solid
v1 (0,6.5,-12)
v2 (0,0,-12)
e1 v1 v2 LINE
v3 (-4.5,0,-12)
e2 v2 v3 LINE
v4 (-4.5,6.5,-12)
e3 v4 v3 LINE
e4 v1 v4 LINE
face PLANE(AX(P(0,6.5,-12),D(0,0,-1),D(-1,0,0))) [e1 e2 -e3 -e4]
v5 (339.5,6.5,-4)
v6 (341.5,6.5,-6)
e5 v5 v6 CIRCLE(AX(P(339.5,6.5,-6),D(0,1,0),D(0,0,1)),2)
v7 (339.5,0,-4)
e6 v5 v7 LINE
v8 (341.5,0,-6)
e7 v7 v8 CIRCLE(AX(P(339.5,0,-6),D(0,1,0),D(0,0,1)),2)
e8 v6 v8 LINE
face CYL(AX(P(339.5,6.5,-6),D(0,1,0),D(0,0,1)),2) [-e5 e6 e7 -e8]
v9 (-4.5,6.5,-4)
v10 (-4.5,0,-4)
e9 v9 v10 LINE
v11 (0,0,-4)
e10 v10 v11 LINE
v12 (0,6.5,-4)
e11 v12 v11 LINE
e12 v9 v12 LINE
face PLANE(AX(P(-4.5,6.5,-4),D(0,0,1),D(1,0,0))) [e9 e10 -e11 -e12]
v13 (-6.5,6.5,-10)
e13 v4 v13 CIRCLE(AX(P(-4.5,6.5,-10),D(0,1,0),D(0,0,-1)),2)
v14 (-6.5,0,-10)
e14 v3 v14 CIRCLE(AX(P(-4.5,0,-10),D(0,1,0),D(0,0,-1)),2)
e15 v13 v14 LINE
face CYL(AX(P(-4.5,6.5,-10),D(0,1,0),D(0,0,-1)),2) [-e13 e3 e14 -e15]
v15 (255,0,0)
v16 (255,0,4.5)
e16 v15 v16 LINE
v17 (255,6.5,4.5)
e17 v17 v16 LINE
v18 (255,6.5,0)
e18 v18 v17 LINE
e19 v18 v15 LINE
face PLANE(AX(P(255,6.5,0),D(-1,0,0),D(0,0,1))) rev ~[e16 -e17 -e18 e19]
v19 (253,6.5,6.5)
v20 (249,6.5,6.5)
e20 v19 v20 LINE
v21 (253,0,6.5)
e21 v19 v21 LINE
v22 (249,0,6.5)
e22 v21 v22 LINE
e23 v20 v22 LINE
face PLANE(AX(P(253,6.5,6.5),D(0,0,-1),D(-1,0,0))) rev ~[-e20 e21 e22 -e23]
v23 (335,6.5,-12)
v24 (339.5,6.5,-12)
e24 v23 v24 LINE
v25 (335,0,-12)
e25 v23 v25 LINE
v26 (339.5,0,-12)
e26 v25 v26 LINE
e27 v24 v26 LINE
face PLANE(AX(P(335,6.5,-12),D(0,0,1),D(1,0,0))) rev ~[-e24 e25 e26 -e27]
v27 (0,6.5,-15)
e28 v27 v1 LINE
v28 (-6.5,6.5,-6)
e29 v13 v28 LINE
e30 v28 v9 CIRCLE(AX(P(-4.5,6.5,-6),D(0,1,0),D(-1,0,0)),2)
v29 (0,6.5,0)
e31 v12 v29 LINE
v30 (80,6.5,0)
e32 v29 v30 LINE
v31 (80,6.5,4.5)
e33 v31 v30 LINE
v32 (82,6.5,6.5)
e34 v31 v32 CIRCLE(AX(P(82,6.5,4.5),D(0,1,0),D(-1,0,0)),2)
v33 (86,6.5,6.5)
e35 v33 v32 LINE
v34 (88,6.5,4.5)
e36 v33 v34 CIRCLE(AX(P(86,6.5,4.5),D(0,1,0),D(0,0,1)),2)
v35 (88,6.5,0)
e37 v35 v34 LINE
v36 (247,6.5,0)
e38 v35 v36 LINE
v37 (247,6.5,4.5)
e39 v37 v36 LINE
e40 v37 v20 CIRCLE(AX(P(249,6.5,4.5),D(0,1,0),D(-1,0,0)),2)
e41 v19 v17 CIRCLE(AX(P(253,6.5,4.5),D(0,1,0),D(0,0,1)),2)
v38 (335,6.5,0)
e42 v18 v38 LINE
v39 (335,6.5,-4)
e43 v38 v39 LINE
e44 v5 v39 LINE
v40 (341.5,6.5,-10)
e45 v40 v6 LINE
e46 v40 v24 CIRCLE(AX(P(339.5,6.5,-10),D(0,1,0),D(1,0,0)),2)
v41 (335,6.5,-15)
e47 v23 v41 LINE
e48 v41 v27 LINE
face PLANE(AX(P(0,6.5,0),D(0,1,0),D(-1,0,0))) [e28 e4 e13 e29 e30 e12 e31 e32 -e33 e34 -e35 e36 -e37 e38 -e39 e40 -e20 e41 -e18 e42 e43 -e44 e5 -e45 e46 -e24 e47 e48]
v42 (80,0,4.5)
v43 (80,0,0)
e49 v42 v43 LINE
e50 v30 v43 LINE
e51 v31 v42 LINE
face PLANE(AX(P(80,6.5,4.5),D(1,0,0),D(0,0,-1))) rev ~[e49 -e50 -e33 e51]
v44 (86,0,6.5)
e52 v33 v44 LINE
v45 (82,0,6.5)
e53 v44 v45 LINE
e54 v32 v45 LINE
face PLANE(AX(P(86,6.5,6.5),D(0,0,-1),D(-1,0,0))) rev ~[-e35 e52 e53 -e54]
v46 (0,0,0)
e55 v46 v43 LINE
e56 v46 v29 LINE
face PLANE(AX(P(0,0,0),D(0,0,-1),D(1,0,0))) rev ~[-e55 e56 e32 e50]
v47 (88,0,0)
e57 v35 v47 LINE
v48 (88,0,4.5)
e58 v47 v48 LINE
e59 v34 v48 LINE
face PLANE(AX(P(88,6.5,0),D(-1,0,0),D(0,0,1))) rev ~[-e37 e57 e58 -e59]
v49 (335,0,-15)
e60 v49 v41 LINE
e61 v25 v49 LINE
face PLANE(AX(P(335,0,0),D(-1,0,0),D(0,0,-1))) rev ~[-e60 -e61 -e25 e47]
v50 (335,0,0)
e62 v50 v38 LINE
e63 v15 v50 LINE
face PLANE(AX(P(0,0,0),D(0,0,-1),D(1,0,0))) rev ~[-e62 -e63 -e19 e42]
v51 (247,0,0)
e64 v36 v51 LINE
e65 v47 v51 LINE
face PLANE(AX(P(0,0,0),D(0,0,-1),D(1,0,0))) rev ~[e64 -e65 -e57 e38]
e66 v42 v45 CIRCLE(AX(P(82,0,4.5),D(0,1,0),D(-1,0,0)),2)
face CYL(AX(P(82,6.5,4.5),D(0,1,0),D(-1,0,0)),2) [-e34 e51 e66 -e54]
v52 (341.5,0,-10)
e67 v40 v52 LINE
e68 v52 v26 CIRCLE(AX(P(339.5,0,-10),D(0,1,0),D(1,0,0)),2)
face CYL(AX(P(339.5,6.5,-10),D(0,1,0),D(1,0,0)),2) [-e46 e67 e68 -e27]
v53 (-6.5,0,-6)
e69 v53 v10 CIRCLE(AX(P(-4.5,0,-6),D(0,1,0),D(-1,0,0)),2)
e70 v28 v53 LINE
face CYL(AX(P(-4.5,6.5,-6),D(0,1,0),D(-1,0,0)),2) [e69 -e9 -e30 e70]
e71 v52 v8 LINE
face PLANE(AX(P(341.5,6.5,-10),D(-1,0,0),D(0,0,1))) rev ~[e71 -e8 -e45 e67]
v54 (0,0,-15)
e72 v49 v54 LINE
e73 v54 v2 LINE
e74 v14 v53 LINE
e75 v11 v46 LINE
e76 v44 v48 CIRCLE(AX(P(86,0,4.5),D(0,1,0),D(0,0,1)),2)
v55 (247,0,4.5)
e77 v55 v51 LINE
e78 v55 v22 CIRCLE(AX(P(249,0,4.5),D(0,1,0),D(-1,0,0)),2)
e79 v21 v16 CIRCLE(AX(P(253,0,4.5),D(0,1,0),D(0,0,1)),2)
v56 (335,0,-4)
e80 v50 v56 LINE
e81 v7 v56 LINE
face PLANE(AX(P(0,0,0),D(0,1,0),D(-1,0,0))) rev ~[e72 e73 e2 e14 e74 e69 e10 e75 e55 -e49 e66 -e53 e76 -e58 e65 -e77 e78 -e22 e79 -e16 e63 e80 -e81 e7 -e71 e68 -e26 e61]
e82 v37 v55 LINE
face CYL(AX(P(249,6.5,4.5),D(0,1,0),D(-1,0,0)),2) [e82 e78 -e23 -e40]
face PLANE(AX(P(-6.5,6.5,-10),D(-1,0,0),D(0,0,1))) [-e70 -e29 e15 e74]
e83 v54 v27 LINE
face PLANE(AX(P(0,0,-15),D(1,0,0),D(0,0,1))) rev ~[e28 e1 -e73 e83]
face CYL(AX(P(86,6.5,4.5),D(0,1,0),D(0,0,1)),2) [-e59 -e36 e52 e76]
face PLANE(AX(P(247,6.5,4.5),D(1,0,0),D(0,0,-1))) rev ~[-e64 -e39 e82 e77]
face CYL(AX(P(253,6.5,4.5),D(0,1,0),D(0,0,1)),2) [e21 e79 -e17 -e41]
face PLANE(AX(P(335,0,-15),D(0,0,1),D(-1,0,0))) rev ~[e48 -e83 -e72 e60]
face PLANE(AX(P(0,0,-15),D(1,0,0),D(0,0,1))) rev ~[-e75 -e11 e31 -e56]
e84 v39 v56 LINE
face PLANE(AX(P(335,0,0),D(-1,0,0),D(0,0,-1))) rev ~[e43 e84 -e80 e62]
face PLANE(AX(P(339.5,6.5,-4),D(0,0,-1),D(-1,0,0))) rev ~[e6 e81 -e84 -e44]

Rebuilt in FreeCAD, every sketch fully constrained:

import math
import FreeCAD as App
import Part
import Sketcher
Q = App.Units.Quantity


def add_polygon(sketch, points):
    """Adds a closed chain of lines whose ends are joined by coincident constraints."""
    first, n = sketch.GeometryCount, len(points)
    for a, b in zip(points, points[1:] + points[:1]):
        sketch.addGeometry(Part.LineSegment(App.Vector(*a, 0), App.Vector(*b, 0)), False)
    for i in range(n):
        sketch.addConstraint(Sketcher.Constraint("Coincident", first + i, 2, first + (i + 1) % n, 1))

doc = App.newDocument("Part")
body = doc.addObject("PartDesign::Body", "Body")

sketch1 = body.newObject("Sketcher::SketchObject", "Sketch")
sketch1.AttachmentSupport = (doc.getObject("XZ_Plane"), [""])
sketch1.MapMode = "FlatFace"
add_polygon(sketch1, [(0, -15), (0, 0), (335, 0), (335, -15)])
sketch1.addConstraint([
    Sketcher.Constraint("Vertical", 0),
    Sketcher.Constraint("Horizontal", 1),
    Sketcher.Constraint("Vertical", 2),
    Sketcher.Constraint("Horizontal", 3),
    Sketcher.Constraint("Coincident", 0, 2, -1, 1),
    Sketcher.Constraint("DistanceX", 1, 1, 1, 2, Q("335 mm")),
    Sketcher.Constraint("DistanceY", 0, 1, 0, 2, Q("15 mm")),
])
pad1 = body.newObject("PartDesign::Pad", "Pad")
pad1.Profile = sketch1
pad1.Length = 6.5
pad1.Reversed = True

sketch2 = body.newObject("Sketcher::SketchObject", "Sketch001")
sketch2.AttachmentSupport = (doc.getObject("XZ_Plane"), [""])
sketch2.MapMode = "FlatFace"
sketch2.AttachmentOffset = App.Placement(App.Vector(0, 0, -6.5), App.Rotation())
sketch2.addGeometry([
    Part.LineSegment(App.Vector(335, -12, 0), App.Vector(335, -4, 0)),
    Part.LineSegment(App.Vector(335, -4, 0), App.Vector(339.5, -4, 0)),
    Part.ArcOfCircle(Part.Circle(App.Vector(339.5, -6, 0), App.Vector(0, 0, 1), 2), math.radians(0), math.radians(90)),
    Part.LineSegment(App.Vector(341.5, -6, 0), App.Vector(341.5, -10, 0)),
    Part.ArcOfCircle(Part.Circle(App.Vector(339.5, -10, 0), App.Vector(0, 0, 1), 2), math.radians(-90), math.radians(0)),
    Part.LineSegment(App.Vector(339.5, -12, 0), App.Vector(335, -12, 0)),
    Part.LineSegment(App.Vector(255, 0, 0), App.Vector(247, 0, 0)),
    Part.LineSegment(App.Vector(247, 0, 0), App.Vector(247, 4.5, 0)),
    Part.ArcOfCircle(Part.Circle(App.Vector(249, 4.5, 0), App.Vector(0, 0, 1), 2), math.radians(90), math.radians(180)),
    Part.LineSegment(App.Vector(249, 6.5, 0), App.Vector(253, 6.5, 0)),
    Part.ArcOfCircle(Part.Circle(App.Vector(253, 4.5, 0), App.Vector(0, 0, 1), 2), math.radians(0), math.radians(90)),
    Part.LineSegment(App.Vector(255, 4.5, 0), App.Vector(255, 0, 0)),
    Part.LineSegment(App.Vector(88, 0, 0), App.Vector(80, 0, 0)),
    Part.LineSegment(App.Vector(80, 0, 0), App.Vector(80, 4.5, 0)),
    Part.ArcOfCircle(Part.Circle(App.Vector(82, 4.5, 0), App.Vector(0, 0, 1), 2), math.radians(90), math.radians(180)),
    Part.LineSegment(App.Vector(82, 6.5, 0), App.Vector(86, 6.5, 0)),
    Part.ArcOfCircle(Part.Circle(App.Vector(86, 4.5, 0), App.Vector(0, 0, 1), 2), math.radians(0), math.radians(90)),
    Part.LineSegment(App.Vector(88, 4.5, 0), App.Vector(88, 0, 0)),
    Part.LineSegment(App.Vector(-4.5, -4, 0), App.Vector(0, -4, 0)),
    Part.LineSegment(App.Vector(0, -4, 0), App.Vector(0, -12, 0)),
    Part.LineSegment(App.Vector(0, -12, 0), App.Vector(-4.5, -12, 0)),
    Part.ArcOfCircle(Part.Circle(App.Vector(-4.5, -10, 0), App.Vector(0, 0, 1), 2), math.radians(180), math.radians(270)),
    Part.LineSegment(App.Vector(-6.5, -10, 0), App.Vector(-6.5, -6, 0)),
    Part.ArcOfCircle(Part.Circle(App.Vector(-4.5, -6, 0), App.Vector(0, 0, 1), 2), math.radians(90), math.radians(180)),
], False)
sketch2.addConstraint([
    Sketcher.Constraint("Coincident", 0, 2, 1, 1),
    Sketcher.Constraint("Tangent", 1, 2, 2, 2),
    Sketcher.Constraint("Tangent", 2, 1, 3, 1),
    Sketcher.Constraint("Tangent", 3, 2, 4, 2),
    Sketcher.Constraint("Tangent", 4, 1, 5, 1),
    Sketcher.Constraint("Coincident", 5, 2, 0, 1),
    Sketcher.Constraint("Coincident", 6, 2, 7, 1),
    Sketcher.Constraint("Tangent", 7, 2, 8, 2),
    Sketcher.Constraint("Tangent", 8, 1, 9, 1),
    Sketcher.Constraint("Tangent", 9, 2, 10, 2),
    Sketcher.Constraint("Tangent", 10, 1, 11, 1),
    Sketcher.Constraint("Coincident", 11, 2, 6, 1),
    Sketcher.Constraint("Coincident", 12, 2, 13, 1),
    Sketcher.Constraint("Tangent", 13, 2, 14, 2),
    Sketcher.Constraint("Tangent", 14, 1, 15, 1),
    Sketcher.Constraint("Tangent", 15, 2, 16, 2),
    Sketcher.Constraint("Tangent", 16, 1, 17, 1),
    Sketcher.Constraint("Coincident", 17, 2, 12, 1),
    Sketcher.Constraint("Coincident", 18, 2, 19, 1),
    Sketcher.Constraint("Coincident", 19, 2, 20, 1),
    Sketcher.Constraint("Tangent", 20, 2, 21, 2),
    Sketcher.Constraint("Tangent", 21, 1, 22, 1),
    Sketcher.Constraint("Tangent", 22, 2, 23, 2),
    Sketcher.Constraint("Tangent", 23, 1, 18, 1),
    Sketcher.Constraint("Vertical", 0),
    Sketcher.Constraint("Horizontal", 1),
    Sketcher.Constraint("Vertical", 3),
    Sketcher.Constraint("Horizontal", 5),
    Sketcher.Constraint("Horizontal", 6),
    Sketcher.Constraint("Vertical", 7),
    Sketcher.Constraint("Horizontal", 9),
    Sketcher.Constraint("Vertical", 11),
    Sketcher.Constraint("Horizontal", 12),
    Sketcher.Constraint("Vertical", 13),
    Sketcher.Constraint("Horizontal", 15),
    Sketcher.Constraint("Vertical", 17),
    Sketcher.Constraint("Horizontal", 18),
    Sketcher.Constraint("Vertical", 19),
    Sketcher.Constraint("Horizontal", 20),
    Sketcher.Constraint("Vertical", 22),
    Sketcher.Constraint("Equal", 2, 4),
    Sketcher.Constraint("Equal", 4, 8),
    Sketcher.Constraint("Equal", 8, 10),
    Sketcher.Constraint("Equal", 10, 14),
    Sketcher.Constraint("Equal", 14, 16),
    Sketcher.Constraint("Equal", 16, 21),
    Sketcher.Constraint("Equal", 21, 23),
    Sketcher.Constraint("PointOnObject", 6, 2, -1),
    Sketcher.Constraint("PointOnObject", 12, 2, -1),
    Sketcher.Constraint("PointOnObject", 18, 2, -2),
    Sketcher.Constraint("Horizontal", 10, 3, 14, 3),
    Sketcher.Constraint("Horizontal", 4, 3, 21, 3),
    Sketcher.Constraint("Horizontal", 2, 3, 23, 3),
    Sketcher.Constraint("Equal", 6, 12),
    Sketcher.Constraint("Equal", 5, 18),
    Sketcher.Constraint("Equal", 12, 0),
    Sketcher.Constraint("Equal", 20, 7),
    Sketcher.Constraint("Radius", 2, Q("2 mm")),
    Sketcher.Constraint("DistanceX", 6, 2, 6, 1, Q("8 mm")),
    Sketcher.Constraint("DistanceY", 0, 2, -1, 1, Q("4 mm")),
    Sketcher.Constraint("DistanceX", -1, 1, 12, 2, Q("80 mm")),
    Sketcher.Constraint("DistanceY", -1, 1, 8, 1, Q("6.5 mm")),
    Sketcher.Constraint("DistanceX", -1, 1, 8, 3, Q("249 mm")),
    Sketcher.Constraint("DistanceX", -1, 1, 0, 2, Q("335 mm")),
])
pad2 = body.newObject("PartDesign::Pad", "Pad001")
pad2.Profile = sketch2
pad2.Length = 6.5

doc.recompute()
